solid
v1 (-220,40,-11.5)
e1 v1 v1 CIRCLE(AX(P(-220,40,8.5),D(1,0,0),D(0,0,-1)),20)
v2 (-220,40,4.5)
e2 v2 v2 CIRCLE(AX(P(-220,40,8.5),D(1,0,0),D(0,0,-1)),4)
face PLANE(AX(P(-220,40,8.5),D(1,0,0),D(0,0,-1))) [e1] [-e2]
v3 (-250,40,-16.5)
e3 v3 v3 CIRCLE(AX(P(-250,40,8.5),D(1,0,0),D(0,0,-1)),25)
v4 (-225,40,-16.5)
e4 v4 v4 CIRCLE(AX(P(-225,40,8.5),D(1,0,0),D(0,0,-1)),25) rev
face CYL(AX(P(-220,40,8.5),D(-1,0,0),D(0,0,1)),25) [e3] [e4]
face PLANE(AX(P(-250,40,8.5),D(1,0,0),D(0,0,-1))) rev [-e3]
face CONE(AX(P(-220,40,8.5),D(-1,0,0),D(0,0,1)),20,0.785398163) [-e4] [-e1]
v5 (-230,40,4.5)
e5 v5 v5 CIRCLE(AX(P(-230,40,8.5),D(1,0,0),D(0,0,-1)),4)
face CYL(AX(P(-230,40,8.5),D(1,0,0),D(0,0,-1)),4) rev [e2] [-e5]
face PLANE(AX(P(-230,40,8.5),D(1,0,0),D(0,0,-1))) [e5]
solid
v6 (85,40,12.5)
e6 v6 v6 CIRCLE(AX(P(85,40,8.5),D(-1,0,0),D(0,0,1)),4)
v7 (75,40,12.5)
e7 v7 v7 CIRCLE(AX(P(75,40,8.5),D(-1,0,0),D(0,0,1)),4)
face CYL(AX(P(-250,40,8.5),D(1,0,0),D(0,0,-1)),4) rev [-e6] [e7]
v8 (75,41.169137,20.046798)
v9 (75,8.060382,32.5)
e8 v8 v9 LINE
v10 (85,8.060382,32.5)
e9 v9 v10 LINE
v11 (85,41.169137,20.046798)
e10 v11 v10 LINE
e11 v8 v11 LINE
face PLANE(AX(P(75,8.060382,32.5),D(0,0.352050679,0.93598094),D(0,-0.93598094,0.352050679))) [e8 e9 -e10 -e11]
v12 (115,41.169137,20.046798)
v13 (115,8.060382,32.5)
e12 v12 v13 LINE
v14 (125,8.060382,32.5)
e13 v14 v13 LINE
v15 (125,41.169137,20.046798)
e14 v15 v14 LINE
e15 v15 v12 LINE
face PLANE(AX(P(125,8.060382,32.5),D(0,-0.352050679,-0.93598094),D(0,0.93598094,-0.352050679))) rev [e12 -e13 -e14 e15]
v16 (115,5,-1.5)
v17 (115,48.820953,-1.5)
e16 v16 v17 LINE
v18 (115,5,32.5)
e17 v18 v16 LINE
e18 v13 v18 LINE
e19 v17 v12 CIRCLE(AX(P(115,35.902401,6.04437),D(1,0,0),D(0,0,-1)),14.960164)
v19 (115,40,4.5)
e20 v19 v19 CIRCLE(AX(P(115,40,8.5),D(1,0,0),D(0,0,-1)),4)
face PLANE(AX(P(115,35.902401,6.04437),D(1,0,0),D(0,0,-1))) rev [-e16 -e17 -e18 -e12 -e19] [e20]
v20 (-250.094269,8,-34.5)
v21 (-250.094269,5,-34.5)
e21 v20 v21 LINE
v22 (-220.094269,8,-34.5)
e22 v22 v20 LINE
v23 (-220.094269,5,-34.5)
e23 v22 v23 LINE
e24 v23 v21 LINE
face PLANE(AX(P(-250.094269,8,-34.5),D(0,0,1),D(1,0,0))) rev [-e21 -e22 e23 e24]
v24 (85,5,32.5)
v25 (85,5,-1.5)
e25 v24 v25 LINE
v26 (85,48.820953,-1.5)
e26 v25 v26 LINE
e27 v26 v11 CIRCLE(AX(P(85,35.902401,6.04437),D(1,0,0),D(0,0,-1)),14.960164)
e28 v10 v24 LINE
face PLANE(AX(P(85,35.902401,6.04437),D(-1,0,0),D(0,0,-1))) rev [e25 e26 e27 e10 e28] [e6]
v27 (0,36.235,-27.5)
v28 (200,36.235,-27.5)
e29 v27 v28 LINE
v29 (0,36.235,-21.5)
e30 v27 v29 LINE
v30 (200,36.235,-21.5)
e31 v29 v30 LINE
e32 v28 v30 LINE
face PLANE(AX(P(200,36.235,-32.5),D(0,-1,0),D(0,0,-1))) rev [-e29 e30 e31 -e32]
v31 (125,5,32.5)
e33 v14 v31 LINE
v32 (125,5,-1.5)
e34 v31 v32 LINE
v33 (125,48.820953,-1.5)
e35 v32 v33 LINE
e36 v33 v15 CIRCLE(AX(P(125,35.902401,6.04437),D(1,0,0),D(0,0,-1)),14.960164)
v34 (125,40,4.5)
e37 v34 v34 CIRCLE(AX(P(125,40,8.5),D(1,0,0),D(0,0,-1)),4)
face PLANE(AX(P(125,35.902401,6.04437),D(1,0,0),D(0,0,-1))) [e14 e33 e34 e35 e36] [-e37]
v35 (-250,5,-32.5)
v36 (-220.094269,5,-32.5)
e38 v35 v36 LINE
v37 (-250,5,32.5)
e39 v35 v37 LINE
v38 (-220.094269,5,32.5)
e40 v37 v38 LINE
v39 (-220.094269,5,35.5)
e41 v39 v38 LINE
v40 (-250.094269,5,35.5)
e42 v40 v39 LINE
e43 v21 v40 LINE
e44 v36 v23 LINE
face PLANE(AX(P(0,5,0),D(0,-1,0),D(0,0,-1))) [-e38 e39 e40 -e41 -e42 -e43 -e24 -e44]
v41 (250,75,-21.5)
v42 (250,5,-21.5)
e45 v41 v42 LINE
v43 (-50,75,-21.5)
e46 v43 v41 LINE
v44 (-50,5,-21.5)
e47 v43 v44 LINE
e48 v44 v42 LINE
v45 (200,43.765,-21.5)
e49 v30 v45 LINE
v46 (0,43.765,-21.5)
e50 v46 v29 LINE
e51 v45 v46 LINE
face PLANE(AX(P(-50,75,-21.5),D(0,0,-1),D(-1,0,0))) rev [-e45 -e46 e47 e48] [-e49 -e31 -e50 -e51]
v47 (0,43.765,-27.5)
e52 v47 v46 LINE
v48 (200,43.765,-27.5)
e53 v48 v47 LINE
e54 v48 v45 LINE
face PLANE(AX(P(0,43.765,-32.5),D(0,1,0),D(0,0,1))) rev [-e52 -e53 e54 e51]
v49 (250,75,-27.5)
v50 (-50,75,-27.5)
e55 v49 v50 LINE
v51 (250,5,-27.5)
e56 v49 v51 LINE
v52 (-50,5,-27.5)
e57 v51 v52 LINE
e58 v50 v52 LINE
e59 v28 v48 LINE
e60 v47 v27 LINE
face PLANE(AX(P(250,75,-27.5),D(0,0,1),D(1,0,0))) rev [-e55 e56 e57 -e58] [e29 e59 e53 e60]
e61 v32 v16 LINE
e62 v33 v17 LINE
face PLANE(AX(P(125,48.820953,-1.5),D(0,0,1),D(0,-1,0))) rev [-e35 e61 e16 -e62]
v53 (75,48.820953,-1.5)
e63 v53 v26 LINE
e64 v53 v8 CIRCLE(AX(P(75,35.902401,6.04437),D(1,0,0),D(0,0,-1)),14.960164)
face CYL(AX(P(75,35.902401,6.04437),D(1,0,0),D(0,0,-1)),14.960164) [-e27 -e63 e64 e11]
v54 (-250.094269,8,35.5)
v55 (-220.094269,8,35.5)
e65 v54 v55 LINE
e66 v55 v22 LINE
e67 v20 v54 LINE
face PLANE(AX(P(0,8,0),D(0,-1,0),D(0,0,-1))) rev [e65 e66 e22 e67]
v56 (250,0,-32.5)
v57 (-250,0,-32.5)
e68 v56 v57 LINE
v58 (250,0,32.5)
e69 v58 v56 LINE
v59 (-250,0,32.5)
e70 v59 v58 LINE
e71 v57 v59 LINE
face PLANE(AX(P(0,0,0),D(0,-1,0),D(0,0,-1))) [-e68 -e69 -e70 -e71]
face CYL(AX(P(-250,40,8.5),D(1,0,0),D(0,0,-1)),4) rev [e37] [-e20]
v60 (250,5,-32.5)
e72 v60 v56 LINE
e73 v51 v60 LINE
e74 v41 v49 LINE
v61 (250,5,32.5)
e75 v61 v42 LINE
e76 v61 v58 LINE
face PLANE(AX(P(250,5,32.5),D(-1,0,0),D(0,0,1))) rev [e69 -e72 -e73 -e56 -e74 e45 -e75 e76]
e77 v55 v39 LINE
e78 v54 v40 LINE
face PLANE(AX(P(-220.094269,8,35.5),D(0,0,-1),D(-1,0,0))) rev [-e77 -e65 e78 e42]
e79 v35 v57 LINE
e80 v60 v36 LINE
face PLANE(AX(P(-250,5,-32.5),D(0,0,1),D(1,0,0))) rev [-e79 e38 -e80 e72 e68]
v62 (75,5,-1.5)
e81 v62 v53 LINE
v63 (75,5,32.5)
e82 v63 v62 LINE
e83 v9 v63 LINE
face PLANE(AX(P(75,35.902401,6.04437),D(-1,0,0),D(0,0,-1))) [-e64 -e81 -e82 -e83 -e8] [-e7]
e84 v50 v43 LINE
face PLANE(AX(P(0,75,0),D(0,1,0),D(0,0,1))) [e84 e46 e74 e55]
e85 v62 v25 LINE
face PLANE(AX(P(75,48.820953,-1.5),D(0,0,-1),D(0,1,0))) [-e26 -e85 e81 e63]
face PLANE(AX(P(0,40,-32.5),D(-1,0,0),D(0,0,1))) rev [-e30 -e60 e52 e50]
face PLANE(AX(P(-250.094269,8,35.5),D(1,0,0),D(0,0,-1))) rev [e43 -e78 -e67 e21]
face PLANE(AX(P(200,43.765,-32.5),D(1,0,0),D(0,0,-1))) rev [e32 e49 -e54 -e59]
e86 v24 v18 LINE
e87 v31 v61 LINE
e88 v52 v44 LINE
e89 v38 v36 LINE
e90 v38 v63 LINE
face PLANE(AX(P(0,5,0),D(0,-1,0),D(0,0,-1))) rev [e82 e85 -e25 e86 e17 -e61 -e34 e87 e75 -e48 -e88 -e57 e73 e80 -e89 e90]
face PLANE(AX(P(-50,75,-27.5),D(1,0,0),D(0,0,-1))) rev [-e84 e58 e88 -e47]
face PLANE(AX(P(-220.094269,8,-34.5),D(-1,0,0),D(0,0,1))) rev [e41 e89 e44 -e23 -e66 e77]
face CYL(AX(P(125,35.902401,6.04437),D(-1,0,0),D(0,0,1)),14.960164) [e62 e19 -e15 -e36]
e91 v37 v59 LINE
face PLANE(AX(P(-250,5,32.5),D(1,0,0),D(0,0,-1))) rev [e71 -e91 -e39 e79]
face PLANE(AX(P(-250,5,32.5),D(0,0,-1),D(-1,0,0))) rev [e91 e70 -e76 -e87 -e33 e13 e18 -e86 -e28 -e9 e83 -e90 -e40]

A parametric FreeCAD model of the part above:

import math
import FreeCAD as App
import Part
import Sketcher

V = App.Vector
Q = App.Units.Quantity


def edges_at(feature, points):
    """Names of the edges that pass closest to the given points."""
    edges = feature.Shape.Edges
    near = lambda p: min(range(len(edges)), key=lambda i: edges[i].distToShape(Part.Vertex(*p))[0])
    return sorted({f"Edge{near(p) + 1}" for p in points})

doc = App.newDocument("Part")
body = doc.addObject("PartDesign::Body", "Body")

# Sketch on XZ plane
sketch1 = body.newObject("Sketcher::SketchObject", "Sketch")
sketch1.AttachmentSupport = (doc.getObject("XZ_Plane"), [""])
sketch1.MapMode = "FlatFace"
sketch1.addGeometry([
    Part.LineSegment(V(-250, -32.5, 0), V(-250, 32.5, 0)),
    Part.LineSegment(V(-250, 32.5, 0), V(250, 32.5, 0)),
    Part.LineSegment(V(250, 32.5, 0), V(250, -32.5, 0)),
    Part.LineSegment(V(250, -32.5, 0), V(-250, -32.5, 0)),
], False)
sketch1.addConstraint([
    Sketcher.Constraint("Coincident", 0, 2, 1, 1),
    Sketcher.Constraint("Coincident", 1, 2, 2, 1),
    Sketcher.Constraint("Coincident", 2, 2, 3, 1),
    Sketcher.Constraint("Coincident", 3, 2, 0, 1),
    Sketcher.Constraint("Vertical", 0),
    Sketcher.Constraint("Horizontal", 1),
    Sketcher.Constraint("Vertical", 2),
    Sketcher.Constraint("Horizontal", 3),
    Sketcher.Constraint("Symmetric", 0, 2, 2, 2, -1, 1),
    Sketcher.Constraint("DistanceX", 1, 1, 1, 2, Q("500 mm")),
    Sketcher.Constraint("DistanceY", 0, 1, 0, 2, Q("65 mm")),
])
pad1 = body.newObject("PartDesign::Pad", "Pad")
pad1.Profile = sketch1
pad1.Length = 5
pad1.Reversed = True

# Sketch on XZ plane
sketch2 = body.newObject("Sketcher::SketchObject", "Sketch001")
sketch2.AttachmentSupport = (doc.getObject("XZ_Plane"), [""])
sketch2.MapMode = "FlatFace"
sketch2.AttachmentOffset = App.Placement(V(0, 0, -5), App.Rotation())
sketch2.addGeometry([
    Part.LineSegment(V(-50, -27.5, 0), V(-50, -21.5, 0)),
    Part.LineSegment(V(-50, -21.5, 0), V(250, -21.5, 0)),
    Part.LineSegment(V(250, -21.5, 0), V(250, -27.5, 0)),
    Part.LineSegment(V(250, -27.5, 0), V(-50, -27.5, 0)),
], False)
sketch2.addConstraint([
    Sketcher.Constraint("Coincident", 0, 2, 1, 1),
    Sketcher.Constraint("Coincident", 1, 2, 2, 1),
    Sketcher.Constraint("Coincident", 2, 2, 3, 1),
    Sketcher.Constraint("Coincident", 3, 2, 0, 1),
    Sketcher.Constraint("Vertical", 0),
    Sketcher.Constraint("Horizontal", 1),
    Sketcher.Constraint("Vertical", 2),
    Sketcher.Constraint("Horizontal", 3),
    Sketcher.Constraint("DistanceX", 1, 1, 1, 2, Q("300 mm")),
    Sketcher.Constraint("DistanceY", 0, 1, 0, 2, Q("6 mm")),
    Sketcher.Constraint("DistanceX", 0, 2, -1, 1, Q("50 mm")),
    Sketcher.Constraint("DistanceY", 0, 2, -1, 1, Q("21.5 mm")),
])
pad2 = body.newObject("PartDesign::Pad", "Pad001")
pad2.Profile = sketch2
pad2.Length = 70
pad2.Reversed = True

# Sketch on XY plane
sketch3 = body.newObject("Sketcher::SketchObject", "Sketch002")
sketch3.AttachmentSupport = (doc.getObject("XY_Plane"), [""])
sketch3.MapMode = "FlatFace"
sketch3.AttachmentOffset = App.Placement(V(0, 0, -21.5), App.Rotation())
sketch3.addGeometry([
    Part.LineSegment(V(0, 36.235, 0), V(200, 36.235, 0)),
    Part.LineSegment(V(200, 36.235, 0), V(200, 43.765, 0)),
    Part.LineSegment(V(200, 43.765, 0), V(0, 43.765, 0)),
    Part.LineSegment(V(0, 43.765, 0), V(0, 36.235, 0)),
], False)
sketch3.addConstraint([
    Sketcher.Constraint("Coincident", 0, 2, 1, 1),
    Sketcher.Constraint("Coincident", 1, 2, 2, 1),
    Sketcher.Constraint("Coincident", 2, 2, 3, 1),
    Sketcher.Constraint("Coincident", 3, 2, 0, 1),
    Sketcher.Constraint("Horizontal", 0),
    Sketcher.Constraint("Vertical", 1),
    Sketcher.Constraint("Horizontal", 2),
    Sketcher.Constraint("Vertical", 3),
    Sketcher.Constraint("PointOnObject", 2, 2, -2),
    Sketcher.Constraint("DistanceX", 0, 1, 0, 2, Q("200 mm")),
    Sketcher.Constraint("DistanceY", 1, 1, 1, 2, Q("7.53 mm")),
    Sketcher.Constraint("DistanceY", -1, 1, 0, 2, Q("36.235 mm")),
])
pocket1 = body.newObject("PartDesign::Pocket", "Pocket")
pocket1.Profile = sketch3
pocket1.Type = "ThroughAll"

# Sketch on YZ plane
sketch4 = body.newObject("Sketcher::SketchObject", "Sketch003")
sketch4.AttachmentSupport = (doc.getObject("YZ_Plane"), [""])
sketch4.MapMode = "FlatFace"
sketch4.AttachmentOffset = App.Placement(V(0, 0, 115), App.Rotation())
sketch4.addGeometry([
    Part.LineSegment(V(8.060382, 32.5, 0), V(5, 32.5, 0)),  # 0
    Part.LineSegment(V(5, 32.5, 0), V(5, -1.5, 0)),  # 1
    Part.LineSegment(V(5, -1.5, 0), V(48.820953, -1.5, 0)),  # 2
    Part.ArcOfCircle(Part.Circle(V(35.902401, 6.04437, 0), V(0, 0, 1), 14.960164), math.radians(-30.284713), math.radians(69.387205)),  # 3
    Part.LineSegment(V(41.169137, 20.046798, 0), V(8.060382, 32.5, 0)),  # 4
], False)
sketch4.addConstraint([
    Sketcher.Constraint("Coincident", 0, 2, 1, 1),
    Sketcher.Constraint("Coincident", 1, 2, 2, 1),
    Sketcher.Constraint("Coincident", 2, 2, 3, 1),
    Sketcher.Constraint("Tangent", 3, 2, 4, 1),
    Sketcher.Constraint("Coincident", 4, 2, 0, 1),
    Sketcher.Constraint("Horizontal", 0),
    Sketcher.Constraint("Vertical", 1),
    Sketcher.Constraint("Horizontal", 2),
    Sketcher.Constraint("DistanceY", 1, 2, 1, 1, Q("34 mm")),
    Sketcher.Constraint("DistanceX", -1, 1, 0, 2, Q("5 mm")),
    Sketcher.Constraint("DistanceY", -1, 1, 0, 2, Q("32.5 mm")),
    Sketcher.Constraint("Radius", 3, Q("14.960164 mm")),
    Sketcher.Constraint("DistanceX", 0, 2, 0, 1, Q("3.060382 mm")),
    Sketcher.Constraint("DistanceX", -1, 1, 3, 3, Q("35.902401 mm")),
    Sketcher.Constraint("DistanceX", 2, 1, 2, 2, Q("43.820953 mm")),
])
pad3 = body.newObject("PartDesign::Pad", "Pad002")
pad3.Profile = sketch4
pad3.Length = 10
doc.recompute()

datumplane = body.newObject("PartDesign::Plane", "DatumPlane")
datumplane.AttachmentSupport = (doc.getObject("YZ_Plane"), [""])
datumplane.MapMode = "FlatFace"
datumplane.AttachmentOffset = App.Placement(V(0, 0, 100), App.Rotation())
mirrored = body.newObject("PartDesign::Mirrored", "Mirrored")
mirrored.Originals = [pad3]
mirrored.MirrorPlane = (datumplane, [""])
body.Tip = mirrored

# Sketch on YZ plane
sketch5 = body.newObject("Sketcher::SketchObject", "Sketch004")
sketch5.AttachmentSupport = (doc.getObject("YZ_Plane"), [""])
sketch5.MapMode = "FlatFace"
sketch5.AttachmentOffset = App.Placement(V(0, 0, 125), App.Rotation())
sketch5.addGeometry(Part.Circle(V(40, 8.5, 0), V(0, 0, 1), 4), False)
sketch5.addConstraint([
    Sketcher.Constraint("Diameter", 0, Q("8 mm")),
    Sketcher.Constraint("DistanceX", -1, 1, 0, 3, Q("40 mm")),
    Sketcher.Constraint("DistanceY", -1, 1, 0, 3, Q("8.5 mm")),
])
pocket2 = body.newObject("PartDesign::Pocket", "Pocket001")
pocket2.Profile = sketch5
pocket2.Type = "ThroughAll"

# Sketch on XZ plane
sketch6 = body.newObject("Sketcher::SketchObject", "Sketch005")
sketch6.AttachmentSupport = (doc.getObject("XZ_Plane"), [""])
sketch6.MapMode = "FlatFace"
sketch6.AttachmentOffset = App.Placement(V(0, 0, -5), App.Rotation())
sketch6.addGeometry([
    Part.LineSegment(V(-250.094269, -34.5, 0), V(-250.094269, 35.5, 0)),
    Part.LineSegment(V(-250.094269, 35.5, 0), V(-220.094269, 35.5, 0)),
    Part.LineSegment(V(-220.094269, 35.5, 0), V(-220.094269, -34.5, 0)),
    Part.LineSegment(V(-220.094269, -34.5, 0), V(-250.094269, -34.5, 0)),
], False)
sketch6.addConstraint([
    Sketcher.Constraint("Coincident", 0, 2, 1, 1),
    Sketcher.Constraint("Coincident", 1, 2, 2, 1),
    Sketcher.Constraint("Coincident", 2, 2, 3, 1),
    Sketcher.Constraint("Coincident", 3, 2, 0, 1),
    Sketcher.Constraint("Vertical", 0),
    Sketcher.Constraint("Horizontal", 1),
    Sketcher.Constraint("Vertical", 2),
    Sketcher.Constraint("Horizontal", 3),
    Sketcher.Constraint("DistanceX", 1, 1, 1, 2, Q("30 mm")),
    Sketcher.Constraint("DistanceY", 0, 1, 0, 2, Q("70 mm")),
    Sketcher.Constraint("DistanceY", -1, 1, 0, 2, Q("35.5 mm")),
    Sketcher.Constraint("DistanceX", 0, 2, -1, 1, Q("250.094269 mm")),
])
pad4 = body.newObject("PartDesign::Pad", "Pad003")
pad4.Profile = sketch6
pad4.Length = 3
pad4.Reversed = True
body2 = doc.addObject("PartDesign::Body", "Body001")

# Sketch on YZ plane
sketch7 = body2.newObject("Sketcher::SketchObject", "Sketch006")
sketch7.AttachmentSupport = (doc.getObject("YZ_Plane001"), [""])
sketch7.MapMode = "FlatFace"
sketch7.AttachmentOffset = App.Placement(V(0, 0, -250), App.Rotation())
sketch7.addGeometry(Part.Circle(V(40, 8.5, 0), V(0, 0, 1), 25), False)
sketch7.addConstraint([
    Sketcher.Constraint("Diameter", 0, Q("50 mm")),
    Sketcher.Constraint("DistanceX", -1, 1, 0, 3, Q("40 mm")),
    Sketcher.Constraint("DistanceY", -1, 1, 0, 3, Q("8.5 mm")),
])
pad5 = body2.newObject("PartDesign::Pad", "Pad004")
pad5.Profile = sketch7
pad5.Length = 30
doc.recompute()

chamfer = body2.newObject("PartDesign::Chamfer", "Chamfer")
chamfer.Base = (pad5, edges_at(pad5, [(-220, 40, 33.5)]))
chamfer.Size = 5

# Sketch on YZ plane
sketch8 = body2.newObject("Sketcher::SketchObject", "Sketch007")
sketch8.AttachmentSupport = (doc.getObject("YZ_Plane001"), [""])
sketch8.MapMode = "FlatFace"
sketch8.AttachmentOffset = App.Placement(V(0, 0, -220), App.Rotation())
sketch8.addGeometry(Part.Circle(V(40, 8.5, 0), V(0, 0, 1), 4), False)
sketch8.addConstraint([
    Sketcher.Constraint("Diameter", 0, Q("8 mm")),
    Sketcher.Constraint("DistanceX", -1, 1, 0, 3, Q("40 mm")),
    Sketcher.Constraint("DistanceY", -1, 1, 0, 3, Q("8.5 mm")),
])
pocket3 = body2.newObject("PartDesign::Pocket", "Pocket002")
pocket3.Profile = sketch8
pocket3.Length = 10

doc.recompute()
